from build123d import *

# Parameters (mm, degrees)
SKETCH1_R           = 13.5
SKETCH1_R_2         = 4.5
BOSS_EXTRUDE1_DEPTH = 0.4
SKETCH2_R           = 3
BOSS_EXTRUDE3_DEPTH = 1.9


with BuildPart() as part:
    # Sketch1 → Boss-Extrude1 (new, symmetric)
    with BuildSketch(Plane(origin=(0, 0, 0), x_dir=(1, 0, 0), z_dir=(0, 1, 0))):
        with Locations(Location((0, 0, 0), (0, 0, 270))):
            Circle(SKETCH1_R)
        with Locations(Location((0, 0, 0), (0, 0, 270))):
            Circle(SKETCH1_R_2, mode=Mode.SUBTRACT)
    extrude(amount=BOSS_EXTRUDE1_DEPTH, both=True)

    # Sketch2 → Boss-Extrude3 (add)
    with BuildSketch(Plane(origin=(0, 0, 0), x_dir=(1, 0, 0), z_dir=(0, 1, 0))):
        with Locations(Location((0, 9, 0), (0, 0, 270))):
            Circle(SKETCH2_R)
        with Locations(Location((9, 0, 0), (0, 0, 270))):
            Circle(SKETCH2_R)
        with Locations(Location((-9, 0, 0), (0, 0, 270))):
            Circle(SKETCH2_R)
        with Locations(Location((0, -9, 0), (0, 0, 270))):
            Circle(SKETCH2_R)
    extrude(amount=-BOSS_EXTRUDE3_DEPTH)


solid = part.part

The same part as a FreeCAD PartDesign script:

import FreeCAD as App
import Part
import Sketcher

doc = App.newDocument("Part")
params = doc.addObject("Spreadsheet::Sheet", "Params")
for row, (alias, value) in enumerate([
    ("sketch1_diameter", "27 mm"),
    ("sketch1_diameter2", "9 mm"),
    ("pad1_length", "0.8 mm"),
    ("sketch2_diameter", "6 mm"),
    ("pad2_length", "1.9 mm"),
], start=1):
    params.set(f"A{row}", alias)
    params.set(f"B{row}", "=" + value)
    params.setAlias(f"B{row}", alias)

body = doc.addObject("PartDesign::Body", "Body")

sketch1 = doc.addObject("Sketcher::SketchObject", "Sketch")
body.addObject(sketch1)
sketch1.AttachmentSupport = (doc.XZ_Plane, [""])
sketch1.MapMode = "FlatFace"
sketch1.addGeometry([
    Part.Circle(App.Vector(0, 0, 0), App.Vector(0, 0, 1), 13.5),
    Part.Circle(App.Vector(0, 0, 0), App.Vector(0, 0, 1), 4.5),
], False)
sketch1.addConstraint([
    Sketcher.Constraint("Coincident", 0, 3, -1, 1),
    Sketcher.Constraint("Coincident", 1, 3, -1, 1),
    Sketcher.Constraint("Diameter", 0, 27.0),
    Sketcher.Constraint("Diameter", 1, 9.0),
])
sketch1.setExpression("Constraints[2]", "Params.sketch1_diameter")
sketch1.setExpression("Constraints[3]", "Params.sketch1_diameter2")
pad1 = doc.addObject("PartDesign::Pad", "Pad")
body.addObject(pad1)
pad1.Profile = sketch1
pad1.setExpression("Length", "Params.pad1_length")
pad1.Midplane = True

sketch2 = doc.addObject("Sketcher::SketchObject", "Sketch001")
body.addObject(sketch2)
sketch2.AttachmentSupport = (doc.XZ_Plane, [""])
sketch2.MapMode = "FlatFace"
sketch2.addGeometry([
    Part.Circle(App.Vector(0, -9, 0), App.Vector(0, 0, 1), 3),
    Part.Circle(App.Vector(9, 0, 0), App.Vector(0, 0, 1), 3),
    Part.Circle(App.Vector(-9, 0, 0), App.Vector(0, 0, 1), 3),
    Part.Circle(App.Vector(0, 9, 0), App.Vector(0, 0, 1), 3),
], False)
sketch2.addConstraint([
    Sketcher.Constraint("Equal", 0, 1),
    Sketcher.Constraint("Equal", 1, 2),
    Sketcher.Constraint("Equal", 2, 3),
    Sketcher.Constraint("Symmetric", 1, 3, 2, 3, -1, 1),
    Sketcher.Constraint("Symmetric", 0, 3, 3, 3, -1, 1),
    Sketcher.Constraint("PointOnObject", 0, 3, -2),
    Sketcher.Constraint("PointOnObject", 1, 3, -1),
    Sketcher.Constraint("Diameter", 0, 6.0),
    Sketcher.Constraint("DistanceY", 0, 3, -1, 1, 9.0),
    Sketcher.Constraint("DistanceX", -1, 1, 1, 3, 9.0),
])
sketch2.setExpression("Constraints[7]", "Params.sketch2_diameter")
pad2 = doc.addObject("PartDesign::Pad", "Pad001")
body.addObject(pad2)
pad2.Profile = sketch2
pad2.setExpression("Length", "Params.pad2_length")

doc.recompute()
